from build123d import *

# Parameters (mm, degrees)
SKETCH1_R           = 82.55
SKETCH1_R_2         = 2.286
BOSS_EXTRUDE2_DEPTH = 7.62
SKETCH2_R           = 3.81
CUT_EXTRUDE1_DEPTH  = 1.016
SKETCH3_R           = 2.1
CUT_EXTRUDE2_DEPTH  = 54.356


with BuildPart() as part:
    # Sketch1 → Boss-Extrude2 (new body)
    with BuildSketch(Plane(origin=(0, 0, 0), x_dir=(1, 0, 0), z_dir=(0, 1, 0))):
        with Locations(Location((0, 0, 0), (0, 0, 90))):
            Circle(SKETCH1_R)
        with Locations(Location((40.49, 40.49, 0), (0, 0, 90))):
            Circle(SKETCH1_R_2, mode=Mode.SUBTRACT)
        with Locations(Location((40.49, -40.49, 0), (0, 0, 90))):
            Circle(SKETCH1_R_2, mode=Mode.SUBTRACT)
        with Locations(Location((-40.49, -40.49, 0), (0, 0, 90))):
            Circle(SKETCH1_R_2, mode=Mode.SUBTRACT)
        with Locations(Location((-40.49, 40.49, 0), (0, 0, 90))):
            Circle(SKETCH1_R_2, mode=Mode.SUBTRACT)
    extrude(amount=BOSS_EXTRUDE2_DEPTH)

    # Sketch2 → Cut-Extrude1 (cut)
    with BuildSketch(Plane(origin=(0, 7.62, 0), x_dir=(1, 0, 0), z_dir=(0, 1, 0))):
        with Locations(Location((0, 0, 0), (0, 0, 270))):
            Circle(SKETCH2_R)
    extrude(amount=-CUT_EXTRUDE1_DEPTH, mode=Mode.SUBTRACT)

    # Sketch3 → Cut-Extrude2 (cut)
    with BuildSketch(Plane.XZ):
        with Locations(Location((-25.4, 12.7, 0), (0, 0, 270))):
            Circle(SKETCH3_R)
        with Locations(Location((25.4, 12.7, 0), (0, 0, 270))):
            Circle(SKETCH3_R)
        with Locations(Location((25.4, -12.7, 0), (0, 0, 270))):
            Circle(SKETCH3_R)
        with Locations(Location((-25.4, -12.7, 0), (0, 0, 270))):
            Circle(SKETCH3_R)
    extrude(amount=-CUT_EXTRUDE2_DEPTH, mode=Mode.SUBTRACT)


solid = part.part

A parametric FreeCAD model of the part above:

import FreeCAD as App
import Part
import Sketcher
from FreeCAD import Vector
Q = App.Units.Quantity

doc = App.newDocument("Part")
body = doc.addObject("PartDesign::Body", "Body")

# Sketch on XZ plane
sketch1 = doc.addObject("Sketcher::SketchObject", "Sketch")
body.addObject(sketch1)
sketch1.AttachmentSupport = (doc.XZ_Plane, [""])
sketch1.MapMode = "FlatFace"
sketch1.addGeometry(Part.Circle(Vector(0, 0, 0), Vector(0, 0, 1), 82.5), False)
sketch1.addGeometry(Part.Circle(Vector(40.5, 40.5, 0), Vector(0, 0, 1), 2.3), False)
sketch1.addGeometry(Part.Circle(Vector(40.5, -40.5, 0), Vector(0, 0, 1), 2.3), False)
sketch1.addGeometry(Part.Circle(Vector(-40.5, 40.5, 0), Vector(0, 0, 1), 2.3), False)
sketch1.addGeometry(Part.Circle(Vector(-40.5, -40.5, 0), Vector(0, 0, 1), 2.3), False)
sketch1.addConstraint(Sketcher.Constraint("Coincident", 0, 3, -1, 1))
sketch1.addConstraint(Sketcher.Constraint("Equal", 1, 2))
sketch1.addConstraint(Sketcher.Constraint("Equal", 2, 3))
sketch1.addConstraint(Sketcher.Constraint("Equal", 3, 4))
sketch1.addConstraint(Sketcher.Constraint("Symmetric", 2, 3, 3, 3, -1, 1))
sketch1.addConstraint(Sketcher.Constraint("Symmetric", 1, 3, 4, 3, -1, 1))
sketch1.addConstraint(Sketcher.Constraint("Symmetric", 1, 3, 3, 3, -2))
sketch1.addConstraint(Sketcher.Constraint("Diameter", 0, Q("6.5 in")))
sketch1.addConstraint(Sketcher.Constraint("Diameter", 1, Q("0.18 in")))
sketch1.addConstraint(Sketcher.Constraint("DistanceX", -1, 1, 1, 3, 40.49))
sketch1.addConstraint(Sketcher.Constraint("DistanceY", -1, 1, 1, 3, 40.49))
pad1 = doc.addObject("PartDesign::Pad", "Pad")
body.addObject(pad1)
pad1.Profile = sketch1
pad1.Length = Q("0.3 in")
pad1.Reversed = True

# Sketch on XZ plane
sketch2 = doc.addObject("Sketcher::SketchObject", "Sketch001")
body.addObject(sketch2)
sketch2.AttachmentSupport = (doc.XZ_Plane, [""])
sketch2.MapMode = "FlatFace"
sketch2.AttachmentOffset = App.Placement(Vector(0, 0, -0.3 * 25.4), App.Rotation())
sketch2.addGeometry(Part.Circle(Vector(0, 0, 0), Vector(0, 0, 1), 3.8), False)
sketch2.addConstraint(Sketcher.Constraint("Coincident", 0, 3, -1, 1))
sketch2.addConstraint(Sketcher.Constraint("Diameter", 0, Q("0.3 in")))
pocket1 = doc.addObject("PartDesign::Pocket", "Pocket")
body.addObject(pocket1)
pocket1.Profile = sketch2
pocket1.Length = Q("0.04 in")
pocket1.Reversed = True

# Sketch on XZ plane
sketch3 = doc.addObject("Sketcher::SketchObject", "Sketch002")
body.addObject(sketch3)
sketch3.AttachmentSupport = (doc.XZ_Plane, [""])
sketch3.MapMode = "FlatFace"
sketch3.addGeometry(Part.Circle(Vector(-25.4, 12.7, 0), Vector(0, 0, 1), 2.1), False)
sketch3.addGeometry(Part.Circle(Vector(25.4, 12.7, 0), Vector(0, 0, 1), 2.1), False)
sketch3.addGeometry(Part.Circle(Vector(25.4, -12.7, 0), Vector(0, 0, 1), 2.1), False)
sketch3.addGeometry(Part.Circle(Vector(-25.4, -12.7, 0), Vector(0, 0, 1), 2.1), False)
sketch3.addConstraint(Sketcher.Constraint("Equal", 0, 1))
sketch3.addConstraint(Sketcher.Constraint("Equal", 1, 2))
sketch3.addConstraint(Sketcher.Constraint("Equal", 2, 3))
sketch3.addConstraint(Sketcher.Constraint("Symmetric", 0, 3, 2, 3, -1, 1))
sketch3.addConstraint(Sketcher.Constraint("Symmetric", 1, 3, 3, 3, -1, 1))
sketch3.addConstraint(Sketcher.Constraint("Symmetric", 0, 3, 1, 3, -2))
sketch3.addConstraint(Sketcher.Constraint("DistanceX", 0, 3, -1, 1, Q("1 in")))
sketch3.addConstraint(Sketcher.Constraint("DistanceY", 2, 3, 1, 3, Q("1 in")))
sketch3.addConstraint(Sketcher.Constraint("Diameter", 0, 4.2))
pocket2 = doc.addObject("PartDesign::Pocket", "Pocket001")
body.addObject(pocket2)
pocket2.Profile = sketch3
pocket2.Length = Q("2.14 in")

doc.recompute()
